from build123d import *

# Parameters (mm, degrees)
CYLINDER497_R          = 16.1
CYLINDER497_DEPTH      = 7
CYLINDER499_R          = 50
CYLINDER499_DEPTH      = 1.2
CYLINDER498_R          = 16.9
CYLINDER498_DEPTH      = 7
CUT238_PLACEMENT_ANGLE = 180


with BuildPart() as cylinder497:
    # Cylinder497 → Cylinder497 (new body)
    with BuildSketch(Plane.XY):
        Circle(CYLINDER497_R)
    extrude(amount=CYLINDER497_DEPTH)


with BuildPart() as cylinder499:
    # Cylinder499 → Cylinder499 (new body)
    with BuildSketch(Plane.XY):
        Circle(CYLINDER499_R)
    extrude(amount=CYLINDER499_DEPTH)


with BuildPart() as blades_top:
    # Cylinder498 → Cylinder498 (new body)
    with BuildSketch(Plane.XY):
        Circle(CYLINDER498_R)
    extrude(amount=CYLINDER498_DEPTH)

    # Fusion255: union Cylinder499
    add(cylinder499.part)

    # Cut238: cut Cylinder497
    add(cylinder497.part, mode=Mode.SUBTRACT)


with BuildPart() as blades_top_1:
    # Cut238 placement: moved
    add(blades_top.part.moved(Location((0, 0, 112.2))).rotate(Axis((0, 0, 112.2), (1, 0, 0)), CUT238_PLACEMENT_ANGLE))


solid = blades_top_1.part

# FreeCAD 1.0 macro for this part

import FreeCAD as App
import Part
import Sketcher

V = App.Vector

doc = App.newDocument("Part")
params = doc.addObject("Spreadsheet::Sheet", "Params")
for row, (alias, value) in enumerate([
    ("sketch1_diameter", "32.2 mm"),
    ("pad1_length", "7 mm"),
    ("sketch2_diameter", "100 mm"),
    ("pad2_length", "1.2 mm"),
    ("sketch3_diameter", "33.8 mm"),
    ("pad3_length", "7 mm"),
], start=1):
    params.set(f"A{row}", alias)
    params.set(f"B{row}", "=" + value)
    params.setAlias(f"B{row}", alias)

body = doc.addObject("PartDesign::Body", "Body")

sketch1 = doc.addObject("Sketcher::SketchObject", "Sketch")
body.addObject(sketch1)
sketch1.AttachmentSupport = (doc.XY_Plane, [""])
sketch1.MapMode = "FlatFace"
sketch1.addGeometry(Part.Circle(V(0, 0, 0), V(0, 0, 1), 16.1), False)
sketch1.addConstraint(Sketcher.Constraint("Coincident", 0, 3, -1, 1))
sketch1.addConstraint(Sketcher.Constraint("Diameter", 0, 32.2))
sketch1.setExpression("Constraints[1]", "Params.sketch1_diameter")
pad1 = doc.addObject("PartDesign::Pad", "Pad")
body.addObject(pad1)
pad1.Profile = sketch1
pad1.setExpression("Length", "Params.pad1_length")
body2 = doc.addObject("PartDesign::Body", "Body001")

sketch2 = doc.addObject("Sketcher::SketchObject", "Sketch001")
body2.addObject(sketch2)
sketch2.AttachmentSupport = (doc.getObject("XY_Plane001"), [""])
sketch2.MapMode = "FlatFace"
sketch2.addGeometry(Part.Circle(V(0, 0, 0), V(0, 0, 1), 50), False)
sketch2.addConstraint(Sketcher.Constraint("Coincident", 0, 3, -1, 1))
sketch2.addConstraint(Sketcher.Constraint("Diameter", 0, 100.0))
sketch2.setExpression("Constraints[1]", "Params.sketch2_diameter")
pad2 = doc.addObject("PartDesign::Pad", "Pad001")
body2.addObject(pad2)
pad2.Profile = sketch2
pad2.setExpression("Length", "Params.pad2_length")
body3 = doc.addObject("PartDesign::Body", "Body002")

sketch3 = doc.addObject("Sketcher::SketchObject", "Sketch002")
body3.addObject(sketch3)
sketch3.AttachmentSupport = (doc.getObject("XY_Plane002"), [""])
sketch3.MapMode = "FlatFace"
sketch3.addGeometry(Part.Circle(V(0, 0, 0), V(0, 0, 1), 16.9), False)
sketch3.addConstraint(Sketcher.Constraint("Coincident", 0, 3, -1, 1))
sketch3.addConstraint(Sketcher.Constraint("Diameter", 0, 33.8))
sketch3.setExpression("Constraints[1]", "Params.sketch3_diameter")
pad3 = doc.addObject("PartDesign::Pad", "Pad002")
body3.addObject(pad3)
pad3.Profile = sketch3
pad3.setExpression("Length", "Params.pad3_length")
doc.recompute()

boolean = doc.addObject("PartDesign::Boolean", "Boolean")
body3.addObject(boolean)
boolean.Type = "Fuse"
boolean.addObjects([body2])
doc.recompute()

boolean2 = doc.addObject("PartDesign::Boolean", "Boolean001")
body3.addObject(boolean2)
boolean2.Type = "Cut"
boolean2.addObjects([body])
body4 = doc.addObject("PartDesign::Body", "Body003")
doc.recompute()

body3.Placement = App.Placement(V(0, 0, 112.2), App.Rotation(V(1, 0, 0), 180))
boolean3 = doc.addObject("PartDesign::Boolean", "Boolean002")
body4.addObject(boolean3)
boolean3.Type = "Fuse"
boolean3.addObjects([body3])

doc.recompute()
